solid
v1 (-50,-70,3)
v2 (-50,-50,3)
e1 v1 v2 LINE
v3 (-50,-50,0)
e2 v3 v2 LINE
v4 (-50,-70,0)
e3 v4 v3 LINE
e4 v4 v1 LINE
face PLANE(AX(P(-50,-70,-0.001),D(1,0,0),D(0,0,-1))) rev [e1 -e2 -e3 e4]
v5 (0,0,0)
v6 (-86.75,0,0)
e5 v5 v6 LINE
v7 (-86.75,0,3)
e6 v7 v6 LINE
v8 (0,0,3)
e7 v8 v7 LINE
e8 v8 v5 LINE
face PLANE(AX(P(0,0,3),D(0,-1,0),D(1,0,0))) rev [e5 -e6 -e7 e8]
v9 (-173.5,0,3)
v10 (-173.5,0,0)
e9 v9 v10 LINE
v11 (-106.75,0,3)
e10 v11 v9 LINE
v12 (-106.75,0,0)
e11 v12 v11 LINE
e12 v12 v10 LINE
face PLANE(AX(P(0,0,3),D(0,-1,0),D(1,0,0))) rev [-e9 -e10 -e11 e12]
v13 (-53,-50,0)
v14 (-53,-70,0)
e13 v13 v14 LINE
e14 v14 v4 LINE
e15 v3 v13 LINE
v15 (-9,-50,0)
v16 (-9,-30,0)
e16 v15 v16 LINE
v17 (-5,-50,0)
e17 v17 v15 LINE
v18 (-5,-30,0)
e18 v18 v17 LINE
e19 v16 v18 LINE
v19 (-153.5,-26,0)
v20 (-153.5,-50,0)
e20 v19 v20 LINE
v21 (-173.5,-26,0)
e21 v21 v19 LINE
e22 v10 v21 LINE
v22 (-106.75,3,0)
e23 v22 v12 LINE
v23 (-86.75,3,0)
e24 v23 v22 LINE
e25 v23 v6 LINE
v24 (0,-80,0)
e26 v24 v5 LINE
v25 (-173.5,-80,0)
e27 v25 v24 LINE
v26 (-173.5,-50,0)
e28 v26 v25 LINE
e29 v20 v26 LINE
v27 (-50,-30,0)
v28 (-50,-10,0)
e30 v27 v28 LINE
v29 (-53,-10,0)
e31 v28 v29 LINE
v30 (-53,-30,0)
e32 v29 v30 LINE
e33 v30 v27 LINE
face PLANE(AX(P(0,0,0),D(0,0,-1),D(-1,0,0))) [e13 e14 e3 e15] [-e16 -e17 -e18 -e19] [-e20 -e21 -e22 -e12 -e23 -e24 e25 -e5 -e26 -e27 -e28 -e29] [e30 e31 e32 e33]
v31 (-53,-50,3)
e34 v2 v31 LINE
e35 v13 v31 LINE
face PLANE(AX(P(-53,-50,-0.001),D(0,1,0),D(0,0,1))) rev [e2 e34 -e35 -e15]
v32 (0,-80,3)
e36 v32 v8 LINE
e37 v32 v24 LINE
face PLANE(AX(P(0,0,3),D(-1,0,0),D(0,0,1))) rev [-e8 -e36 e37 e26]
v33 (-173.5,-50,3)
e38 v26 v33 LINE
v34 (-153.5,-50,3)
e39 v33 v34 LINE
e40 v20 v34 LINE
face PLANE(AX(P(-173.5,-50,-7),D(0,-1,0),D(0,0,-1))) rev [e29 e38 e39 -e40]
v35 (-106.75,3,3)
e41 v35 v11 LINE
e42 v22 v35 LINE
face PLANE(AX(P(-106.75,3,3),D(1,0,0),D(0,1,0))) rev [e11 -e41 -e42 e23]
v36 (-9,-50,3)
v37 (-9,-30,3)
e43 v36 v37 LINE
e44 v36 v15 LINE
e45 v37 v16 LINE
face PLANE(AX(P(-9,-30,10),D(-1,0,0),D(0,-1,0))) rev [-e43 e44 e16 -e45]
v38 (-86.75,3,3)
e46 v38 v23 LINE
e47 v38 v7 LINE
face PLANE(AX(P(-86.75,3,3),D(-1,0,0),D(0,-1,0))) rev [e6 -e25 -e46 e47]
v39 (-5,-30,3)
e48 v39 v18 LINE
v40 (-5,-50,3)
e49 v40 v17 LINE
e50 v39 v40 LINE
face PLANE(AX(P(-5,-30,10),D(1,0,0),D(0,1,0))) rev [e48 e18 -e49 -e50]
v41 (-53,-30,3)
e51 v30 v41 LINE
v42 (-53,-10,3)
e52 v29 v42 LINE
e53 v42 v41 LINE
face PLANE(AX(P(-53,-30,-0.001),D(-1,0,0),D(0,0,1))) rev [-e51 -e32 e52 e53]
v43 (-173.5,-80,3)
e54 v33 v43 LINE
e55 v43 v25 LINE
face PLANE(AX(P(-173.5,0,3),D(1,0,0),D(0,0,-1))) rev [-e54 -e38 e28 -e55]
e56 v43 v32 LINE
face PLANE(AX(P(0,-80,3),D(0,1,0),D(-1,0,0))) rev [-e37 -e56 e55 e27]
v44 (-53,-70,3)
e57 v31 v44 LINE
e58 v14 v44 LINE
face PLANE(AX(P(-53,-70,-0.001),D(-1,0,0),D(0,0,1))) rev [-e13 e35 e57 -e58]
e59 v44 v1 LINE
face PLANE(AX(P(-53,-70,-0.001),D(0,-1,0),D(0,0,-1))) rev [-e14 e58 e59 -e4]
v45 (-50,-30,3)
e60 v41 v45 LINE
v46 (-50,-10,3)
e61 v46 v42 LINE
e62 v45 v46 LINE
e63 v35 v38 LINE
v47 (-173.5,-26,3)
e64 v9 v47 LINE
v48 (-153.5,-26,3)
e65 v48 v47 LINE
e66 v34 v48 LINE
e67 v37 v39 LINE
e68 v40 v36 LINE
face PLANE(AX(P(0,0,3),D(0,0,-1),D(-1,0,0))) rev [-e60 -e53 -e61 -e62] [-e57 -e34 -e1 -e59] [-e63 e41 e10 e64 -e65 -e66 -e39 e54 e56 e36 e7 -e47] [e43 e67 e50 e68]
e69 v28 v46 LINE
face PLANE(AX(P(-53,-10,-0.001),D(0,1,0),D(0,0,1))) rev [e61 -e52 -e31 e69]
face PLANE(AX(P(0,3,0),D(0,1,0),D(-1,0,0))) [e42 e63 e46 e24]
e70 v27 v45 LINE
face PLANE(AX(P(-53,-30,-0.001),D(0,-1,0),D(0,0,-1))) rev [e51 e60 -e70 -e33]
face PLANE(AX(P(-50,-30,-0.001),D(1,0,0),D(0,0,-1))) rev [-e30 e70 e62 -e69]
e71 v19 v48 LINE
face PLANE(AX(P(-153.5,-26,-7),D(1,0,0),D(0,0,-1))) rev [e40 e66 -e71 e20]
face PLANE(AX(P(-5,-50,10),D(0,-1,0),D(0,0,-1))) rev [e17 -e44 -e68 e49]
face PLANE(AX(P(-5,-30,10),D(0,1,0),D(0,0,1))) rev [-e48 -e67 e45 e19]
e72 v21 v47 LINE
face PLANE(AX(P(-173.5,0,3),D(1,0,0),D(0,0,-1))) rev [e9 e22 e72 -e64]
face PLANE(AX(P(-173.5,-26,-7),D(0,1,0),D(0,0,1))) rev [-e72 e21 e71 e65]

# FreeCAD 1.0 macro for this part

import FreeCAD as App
import Part
import Sketcher

V = App.Vector

doc = App.newDocument("Part")
body = doc.addObject("PartDesign::Body", "Body")

sketch1 = doc.addObject("Sketcher::SketchObject", "Sketch")
body.addObject(sketch1)
sketch1.AttachmentSupport = (doc.XY_Plane, [""])
sketch1.MapMode = "FlatFace"
sketch1.addGeometry([
    Part.LineSegment(V(-174, 0, 0), V(-174, -80, 0)),
    Part.LineSegment(V(-174, -80, 0), V(0, -80, 0)),
    Part.LineSegment(V(0, -80, 0), V(0, 0, 0)),
    Part.LineSegment(V(0, 0, 0), V(-174, 0, 0)),
], False)
sketch1.addConstraint([
    Sketcher.Constraint("Coincident", 0, 2, 1, 1),
    Sketcher.Constraint("Coincident", 1, 2, 2, 1),
    Sketcher.Constraint("Coincident", 2, 2, 3, 1),
    Sketcher.Constraint("Coincident", 3, 2, 0, 1),
    Sketcher.Constraint("Vertical", 0),
    Sketcher.Constraint("Horizontal", 1),
    Sketcher.Constraint("Vertical", 2),
    Sketcher.Constraint("Horizontal", 3),
    Sketcher.Constraint("Coincident", 2, 2, -1, 1),
    Sketcher.Constraint("DistanceY", 0, 2, 0, 1, 80.0),
    Sketcher.Constraint("DistanceX", 1, 1, 1, 2, 173.5),
])
pad1 = doc.addObject("PartDesign::Pad", "Pad")
body.addObject(pad1)
pad1.Profile = sketch1
pad1.Length = 3

sketch2 = doc.addObject("Sketcher::SketchObject", "Sketch001")
body.addObject(sketch2)
sketch2.AttachmentSupport = (doc.XY_Plane, [""])
sketch2.MapMode = "FlatFace"
sketch2.AttachmentOffset = App.Placement(V(0, 0, 3), App.Rotation())
sketch2.addGeometry([
    Part.LineSegment(V(-53, -50, 0), V(-53, -70, 0)),
    Part.LineSegment(V(-53, -70, 0), V(-50, -70, 0)),
    Part.LineSegment(V(-50, -70, 0), V(-50, -50, 0)),
    Part.LineSegment(V(-50, -50, 0), V(-53, -50, 0)),
], False)
sketch2.addConstraint([
    Sketcher.Constraint("Coincident", 0, 2, 1, 1),
    Sketcher.Constraint("Coincident", 1, 2, 2, 1),
    Sketcher.Constraint("Coincident", 2, 2, 3, 1),
    Sketcher.Constraint("Coincident", 3, 2, 0, 1),
    Sketcher.Constraint("Vertical", 0),
    Sketcher.Constraint("Horizontal", 1),
    Sketcher.Constraint("Vertical", 2),
    Sketcher.Constraint("Horizontal", 3),
    Sketcher.Constraint("DistanceX", 1, 1, 1, 2, 3.0),
    Sketcher.Constraint("DistanceY", 0, 2, 0, 1, 20.0),
    Sketcher.Constraint("DistanceX", 0, 2, -1, 1, 53.0),
    Sketcher.Constraint("DistanceY", 0, 2, -1, 1, 70.0),
])
pocket1 = doc.addObject("PartDesign::Pocket", "Pocket")
body.addObject(pocket1)
pocket1.Profile = sketch2
pocket1.Type = "UpToFirst"

sketch3 = doc.addObject("Sketcher::SketchObject", "Sketch002")
body.addObject(sketch3)
sketch3.AttachmentSupport = (doc.XY_Plane, [""])
sketch3.MapMode = "FlatFace"
sketch3.AttachmentOffset = App.Placement(V(0, 0, 3), App.Rotation())
sketch3.addGeometry([
    Part.LineSegment(V(-53, -10, 0), V(-53, -30, 0)),
    Part.LineSegment(V(-53, -30, 0), V(-50, -30, 0)),
    Part.LineSegment(V(-50, -30, 0), V(-50, -10, 0)),
    Part.LineSegment(V(-50, -10, 0), V(-53, -10, 0)),
], False)
sketch3.addConstraint([
    Sketcher.Constraint("Coincident", 0, 2, 1, 1),
    Sketcher.Constraint("Coincident", 1, 2, 2, 1),
    Sketcher.Constraint("Coincident", 2, 2, 3, 1),
    Sketcher.Constraint("Coincident", 3, 2, 0, 1),
    Sketcher.Constraint("Vertical", 0),
    Sketcher.Constraint("Horizontal", 1),
    Sketcher.Constraint("Vertical", 2),
    Sketcher.Constraint("Horizontal", 3),
    Sketcher.Constraint("DistanceX", 1, 1, 1, 2, 3.0),
    Sketcher.Constraint("DistanceY", 0, 2, 0, 1, 20.0),
    Sketcher.Constraint("DistanceX", 0, 2, -1, 1, 53.0),
    Sketcher.Constraint("DistanceY", 0, 2, -1, 1, 30.0),
])
pocket2 = doc.addObject("PartDesign::Pocket", "Pocket001")
body.addObject(pocket2)
pocket2.Profile = sketch3
pocket2.Type = "UpToFirst"

sketch4 = doc.addObject("Sketcher::SketchObject", "Sketch003")
body.addObject(sketch4)
sketch4.AttachmentSupport = (doc.XZ_Plane, [""])
sketch4.MapMode = "FlatFace"
sketch4.addGeometry([
    Part.LineSegment(V(-106.8, 0, 0), V(-106.8, 3, 0)),
    Part.LineSegment(V(-106.8, 3, 0), V(-86.8, 3, 0)),
    Part.LineSegment(V(-86.8, 3, 0), V(-86.8, 0, 0)),
    Part.LineSegment(V(-86.8, 0, 0), V(-106.8, 0, 0)),
], False)
sketch4.addConstraint([
    Sketcher.Constraint("Coincident", 0, 2, 1, 1),
    Sketcher.Constraint("Coincident", 1, 2, 2, 1),
    Sketcher.Constraint("Coincident", 2, 2, 3, 1),
    Sketcher.Constraint("Coincident", 3, 2, 0, 1),
    Sketcher.Constraint("Vertical", 0),
    Sketcher.Constraint("Horizontal", 1),
    Sketcher.Constraint("Vertical", 2),
    Sketcher.Constraint("Horizontal", 3),
    Sketcher.Constraint("PointOnObject", 2, 2, -1),
    Sketcher.Constraint("DistanceX", 1, 1, 1, 2, 20.0),
    Sketcher.Constraint("DistanceY", 0, 1, 0, 2, 3.0),
    Sketcher.Constraint("DistanceX", 0, 2, -1, 1, 106.75),
])
pad2 = doc.addObject("PartDesign::Pad", "Pad001")
body.addObject(pad2)
pad2.Profile = sketch4
pad2.Length = 3
pad2.Reversed = True

sketch5 = doc.addObject("Sketcher::SketchObject", "Sketch004")
body.addObject(sketch5)
sketch5.AttachmentSupport = (doc.XY_Plane, [""])
sketch5.MapMode = "FlatFace"
sketch5.addGeometry([
    Part.LineSegment(V(-5, -30, 0), V(-5, -50, 0)),
    Part.LineSegment(V(-5, -50, 0), V(-9, -50, 0)),
    Part.LineSegment(V(-9, -50, 0), V(-9, -30, 0)),
    Part.LineSegment(V(-9, -30, 0), V(-5, -30, 0)),
], False)
sketch5.addConstraint([
    Sketcher.Constraint("Coincident", 0, 2, 1, 1),
    Sketcher.Constraint("Coincident", 1, 2, 2, 1),
    Sketcher.Constraint("Coincident", 2, 2, 3, 1),
    Sketcher.Constraint("Coincident", 3, 2, 0, 1),
    Sketcher.Constraint("Vertical", 0),
    Sketcher.Constraint("Horizontal", 1),
    Sketcher.Constraint("Vertical", 2),
    Sketcher.Constraint("Horizontal", 3),
    Sketcher.Constraint("DistanceX", 1, 2, 1, 1, 4.0),
    Sketcher.Constraint("DistanceY", 0, 2, 0, 1, 20.0),
    Sketcher.Constraint("DistanceX", 0, 2, -1, 1, 5.0),
    Sketcher.Constraint("DistanceY", 0, 2, -1, 1, 50.0),
])
pocket3 = doc.addObject("PartDesign::Pocket", "Pocket002")
body.addObject(pocket3)
pocket3.Profile = sketch5
pocket3.Length = 10
pocket3.Reversed = True

sketch6 = doc.addObject("Sketcher::SketchObject", "Sketch005")
body.addObject(sketch6)
sketch6.AttachmentSupport = (doc.XY_Plane, [""])
sketch6.MapMode = "FlatFace"
sketch6.AttachmentOffset = App.Placement(V(0, 0, 3), App.Rotation())
sketch6.addGeometry([
    Part.LineSegment(V(-174, -26, 0), V(-174, -50, 0)),
    Part.LineSegment(V(-174, -50, 0), V(-154, -50, 0)),
    Part.LineSegment(V(-154, -50, 0), V(-154, -26, 0)),
    Part.LineSegment(V(-154, -26, 0), V(-174, -26, 0)),
], False)
sketch6.addConstraint([
    Sketcher.Constraint("Coincident", 0, 2, 1, 1),
    Sketcher.Constraint("Coincident", 1, 2, 2, 1),
    Sketcher.Constraint("Coincident", 2, 2, 3, 1),
    Sketcher.Constraint("Coincident", 3, 2, 0, 1),
    Sketcher.Constraint("Vertical", 0),
    Sketcher.Constraint("Horizontal", 1),
    Sketcher.Constraint("Vertical", 2),
    Sketcher.Constraint("Horizontal", 3),
    Sketcher.Constraint("DistanceX", 1, 1, 1, 2, 20.0),
    Sketcher.Constraint("DistanceY", 0, 2, 0, 1, 24.0),
    Sketcher.Constraint("DistanceY", 0, 2, -1, 1, 50.0),
    Sketcher.Constraint("DistanceX", 0, 2, -1, 1, 173.5),
])
pocket4 = doc.addObject("PartDesign::Pocket", "Pocket003")
body.addObject(pocket4)
pocket4.Profile = sketch6
pocket4.Length = 10

doc.recompute()
